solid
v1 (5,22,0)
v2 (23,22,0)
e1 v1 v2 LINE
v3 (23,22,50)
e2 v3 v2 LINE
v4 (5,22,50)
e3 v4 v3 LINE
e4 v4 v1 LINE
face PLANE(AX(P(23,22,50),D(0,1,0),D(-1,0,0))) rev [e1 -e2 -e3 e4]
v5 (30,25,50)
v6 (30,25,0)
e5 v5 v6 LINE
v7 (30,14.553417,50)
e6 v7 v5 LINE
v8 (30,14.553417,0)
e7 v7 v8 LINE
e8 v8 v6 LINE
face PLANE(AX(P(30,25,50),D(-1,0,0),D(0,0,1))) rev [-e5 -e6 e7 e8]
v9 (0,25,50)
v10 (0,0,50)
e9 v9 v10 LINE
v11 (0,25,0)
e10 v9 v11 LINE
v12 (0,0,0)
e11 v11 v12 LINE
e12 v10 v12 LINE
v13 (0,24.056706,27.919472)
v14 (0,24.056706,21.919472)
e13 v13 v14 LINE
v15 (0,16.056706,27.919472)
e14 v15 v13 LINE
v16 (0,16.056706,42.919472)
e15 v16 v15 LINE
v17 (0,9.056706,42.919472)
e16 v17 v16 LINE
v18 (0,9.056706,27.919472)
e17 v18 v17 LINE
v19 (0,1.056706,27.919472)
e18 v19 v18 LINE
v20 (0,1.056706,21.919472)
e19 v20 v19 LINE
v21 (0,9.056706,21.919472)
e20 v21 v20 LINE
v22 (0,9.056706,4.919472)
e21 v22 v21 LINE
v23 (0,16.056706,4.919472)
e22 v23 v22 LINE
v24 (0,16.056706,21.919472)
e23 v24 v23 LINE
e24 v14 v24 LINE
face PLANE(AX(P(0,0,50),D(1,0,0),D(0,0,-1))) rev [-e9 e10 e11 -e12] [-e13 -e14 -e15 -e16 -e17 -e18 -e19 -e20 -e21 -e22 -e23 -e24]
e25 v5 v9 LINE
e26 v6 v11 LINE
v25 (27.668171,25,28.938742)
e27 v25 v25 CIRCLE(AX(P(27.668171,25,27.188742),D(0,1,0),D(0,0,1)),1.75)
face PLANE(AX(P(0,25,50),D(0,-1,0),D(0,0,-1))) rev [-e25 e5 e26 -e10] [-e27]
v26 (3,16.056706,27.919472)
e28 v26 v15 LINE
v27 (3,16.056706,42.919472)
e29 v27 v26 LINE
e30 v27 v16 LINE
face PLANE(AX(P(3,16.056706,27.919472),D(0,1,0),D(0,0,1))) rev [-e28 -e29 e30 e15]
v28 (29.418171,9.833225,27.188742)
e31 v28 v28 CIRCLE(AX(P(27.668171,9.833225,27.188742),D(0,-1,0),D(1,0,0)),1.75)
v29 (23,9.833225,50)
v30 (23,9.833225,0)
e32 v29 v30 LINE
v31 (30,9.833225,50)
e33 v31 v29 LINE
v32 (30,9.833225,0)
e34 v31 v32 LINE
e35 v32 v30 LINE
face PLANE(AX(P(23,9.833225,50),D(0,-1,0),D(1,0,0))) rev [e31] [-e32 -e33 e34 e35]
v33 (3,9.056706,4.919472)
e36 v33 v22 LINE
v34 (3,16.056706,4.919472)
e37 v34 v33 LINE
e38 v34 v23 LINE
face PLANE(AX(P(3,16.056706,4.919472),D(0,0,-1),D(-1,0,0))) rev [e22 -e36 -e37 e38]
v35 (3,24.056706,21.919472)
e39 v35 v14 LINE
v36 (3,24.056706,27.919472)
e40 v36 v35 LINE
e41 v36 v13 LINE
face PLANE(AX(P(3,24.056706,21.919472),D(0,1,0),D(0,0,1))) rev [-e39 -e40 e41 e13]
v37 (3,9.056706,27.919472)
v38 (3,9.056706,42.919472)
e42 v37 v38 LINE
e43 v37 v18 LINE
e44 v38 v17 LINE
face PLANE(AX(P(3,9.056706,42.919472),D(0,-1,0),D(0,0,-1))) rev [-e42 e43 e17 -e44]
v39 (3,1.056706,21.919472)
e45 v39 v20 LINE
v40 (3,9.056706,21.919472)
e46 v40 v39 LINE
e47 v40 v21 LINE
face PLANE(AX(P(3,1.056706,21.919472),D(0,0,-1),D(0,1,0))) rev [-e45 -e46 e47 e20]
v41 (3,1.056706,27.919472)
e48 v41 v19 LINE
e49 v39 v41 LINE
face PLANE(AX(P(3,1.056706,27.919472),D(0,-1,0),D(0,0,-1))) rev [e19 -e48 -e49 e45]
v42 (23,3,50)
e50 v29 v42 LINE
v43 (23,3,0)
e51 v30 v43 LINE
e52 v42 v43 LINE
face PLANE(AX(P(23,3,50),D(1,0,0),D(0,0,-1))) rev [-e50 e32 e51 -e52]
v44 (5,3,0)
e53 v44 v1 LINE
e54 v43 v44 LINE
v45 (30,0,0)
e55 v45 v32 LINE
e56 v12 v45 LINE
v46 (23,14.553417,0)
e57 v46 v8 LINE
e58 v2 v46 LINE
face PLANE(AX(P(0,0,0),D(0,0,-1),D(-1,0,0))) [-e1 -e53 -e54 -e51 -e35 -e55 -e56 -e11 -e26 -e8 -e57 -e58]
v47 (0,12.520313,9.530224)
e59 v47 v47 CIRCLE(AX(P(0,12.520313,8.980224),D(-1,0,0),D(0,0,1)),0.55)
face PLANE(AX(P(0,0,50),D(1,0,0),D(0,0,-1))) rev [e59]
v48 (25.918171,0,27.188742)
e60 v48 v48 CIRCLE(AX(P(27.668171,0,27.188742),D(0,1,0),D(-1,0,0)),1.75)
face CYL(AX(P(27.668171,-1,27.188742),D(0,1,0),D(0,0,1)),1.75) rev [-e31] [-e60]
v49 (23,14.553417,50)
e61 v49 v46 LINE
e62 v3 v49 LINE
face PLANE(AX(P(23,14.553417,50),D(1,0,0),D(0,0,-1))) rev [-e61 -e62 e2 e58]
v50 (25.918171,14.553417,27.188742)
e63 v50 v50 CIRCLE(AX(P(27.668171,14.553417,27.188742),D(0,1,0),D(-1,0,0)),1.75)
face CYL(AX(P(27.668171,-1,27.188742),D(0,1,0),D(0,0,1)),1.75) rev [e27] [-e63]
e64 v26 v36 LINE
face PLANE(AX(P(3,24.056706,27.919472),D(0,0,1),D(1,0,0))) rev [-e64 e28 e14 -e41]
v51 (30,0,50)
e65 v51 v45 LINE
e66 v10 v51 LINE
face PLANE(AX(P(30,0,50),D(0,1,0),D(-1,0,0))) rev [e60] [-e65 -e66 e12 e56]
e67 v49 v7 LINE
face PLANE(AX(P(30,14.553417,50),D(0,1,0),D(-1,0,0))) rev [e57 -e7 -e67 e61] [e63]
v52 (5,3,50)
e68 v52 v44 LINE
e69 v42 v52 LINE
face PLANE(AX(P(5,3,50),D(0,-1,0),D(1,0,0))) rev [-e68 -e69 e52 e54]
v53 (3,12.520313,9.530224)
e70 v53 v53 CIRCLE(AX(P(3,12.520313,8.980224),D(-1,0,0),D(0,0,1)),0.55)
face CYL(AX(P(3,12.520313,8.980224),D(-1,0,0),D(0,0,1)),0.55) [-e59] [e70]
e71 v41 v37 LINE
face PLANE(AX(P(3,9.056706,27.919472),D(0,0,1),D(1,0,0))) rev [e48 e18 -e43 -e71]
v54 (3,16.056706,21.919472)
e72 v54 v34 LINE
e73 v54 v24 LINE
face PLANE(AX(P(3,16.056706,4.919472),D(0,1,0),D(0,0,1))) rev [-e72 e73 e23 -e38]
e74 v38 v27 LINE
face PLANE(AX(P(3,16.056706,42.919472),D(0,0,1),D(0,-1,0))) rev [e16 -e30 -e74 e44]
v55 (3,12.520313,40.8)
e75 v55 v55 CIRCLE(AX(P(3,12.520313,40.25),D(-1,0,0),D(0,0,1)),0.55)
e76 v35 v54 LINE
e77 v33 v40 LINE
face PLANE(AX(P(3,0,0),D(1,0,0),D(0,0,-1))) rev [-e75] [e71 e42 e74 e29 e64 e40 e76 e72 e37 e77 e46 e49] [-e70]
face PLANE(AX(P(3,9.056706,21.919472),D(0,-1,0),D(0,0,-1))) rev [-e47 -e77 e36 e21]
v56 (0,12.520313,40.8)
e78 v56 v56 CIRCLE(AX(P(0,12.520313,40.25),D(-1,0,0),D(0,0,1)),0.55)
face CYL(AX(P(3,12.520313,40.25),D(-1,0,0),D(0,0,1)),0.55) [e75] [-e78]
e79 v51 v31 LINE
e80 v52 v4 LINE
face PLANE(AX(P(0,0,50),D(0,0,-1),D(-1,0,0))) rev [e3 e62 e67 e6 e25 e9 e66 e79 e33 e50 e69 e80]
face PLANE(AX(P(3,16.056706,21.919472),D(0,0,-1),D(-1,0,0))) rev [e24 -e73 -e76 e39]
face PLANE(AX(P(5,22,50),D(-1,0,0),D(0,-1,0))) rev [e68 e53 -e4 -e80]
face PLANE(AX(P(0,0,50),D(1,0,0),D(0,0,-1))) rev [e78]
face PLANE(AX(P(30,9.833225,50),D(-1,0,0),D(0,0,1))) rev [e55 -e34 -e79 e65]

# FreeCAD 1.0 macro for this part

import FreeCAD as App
import Part
import Sketcher
Q = App.Units.Quantity

doc = App.newDocument("Part")
params = doc.addObject("Spreadsheet::Sheet", "Params")
for row, (alias, value) in enumerate([
    ("sketch1_width", "30 mm"),
    ("sketch1_width2", "7 mm"),
    ("sketch1_width3", "18 mm"),
    ("sketch1_height", "25 mm"),
    ("sketch1_height2", "19 mm"),
    ("pad1_length", "50 mm"),
    ("sketch2_diameter", "1.1 mm"),
    ("sketch2_width", "7 mm"),
    ("sketch2_width2", "8 mm"),
    ("sketch2_height", "17 mm"),
    ("sketch2_height2", "6 mm"),
    ("pocket1_length", "3 mm"),
    ("sketch3_diameter", "3.5 mm"),
    ("pocket2_length", "26 mm"),
], start=1):
    params.set(f"A{row}", alias)
    params.set(f"B{row}", "=" + value)
    params.setAlias(f"B{row}", alias)

body = doc.addObject("PartDesign::Body", "Body")

# Sketch on XY plane
sketch1 = body.newObject("Sketcher::SketchObject", "Sketch")
sketch1.AttachmentSupport = (doc.getObject("XY_Plane"), [""])
sketch1.MapMode = "FlatFace"
sketch1.addGeometry(Part.LineSegment(App.Vector(0, 25, 0), App.Vector(0, 0, 0)), False)
sketch1.addGeometry(Part.LineSegment(App.Vector(0, 0, 0), App.Vector(30, 0, 0)), False)
sketch1.addGeometry(Part.LineSegment(App.Vector(30, 0, 0), App.Vector(30, 10, 0)), False)
sketch1.addGeometry(Part.LineSegment(App.Vector(30, 10, 0), App.Vector(23, 10, 0)), False)
sketch1.addGeometry(Part.LineSegment(App.Vector(23, 10, 0), App.Vector(23, 3, 0)), False)
sketch1.addGeometry(Part.LineSegment(App.Vector(23, 3, 0), App.Vector(5, 3, 0)), False)
sketch1.addGeometry(Part.LineSegment(App.Vector(5, 3, 0), App.Vector(5, 22, 0)), False)
sketch1.addGeometry(Part.LineSegment(App.Vector(5, 22, 0), App.Vector(23, 22, 0)), False)
sketch1.addGeometry(Part.LineSegment(App.Vector(23, 22, 0), App.Vector(23, 15, 0)), False)
sketch1.addGeometry(Part.LineSegment(App.Vector(23, 15, 0), App.Vector(30, 15, 0)), False)
sketch1.addGeometry(Part.LineSegment(App.Vector(30, 15, 0), App.Vector(30, 25, 0)), False)
sketch1.addGeometry(Part.LineSegment(App.Vector(30, 25, 0), App.Vector(0, 25, 0)), False)
sketch1.addConstraint(Sketcher.Constraint("Coincident", 0, 2, 1, 1))
sketch1.addConstraint(Sketcher.Constraint("Coincident", 1, 2, 2, 1))
sketch1.addConstraint(Sketcher.Constraint("Coincident", 2, 2, 3, 1))
sketch1.addConstraint(Sketcher.Constraint("Coincident", 3, 2, 4, 1))
sketch1.addConstraint(Sketcher.Constraint("Coincident", 4, 2, 5, 1))
sketch1.addConstraint(Sketcher.Constraint("Coincident", 5, 2, 6, 1))
sketch1.addConstraint(Sketcher.Constraint("Coincident", 6, 2, 7, 1))
sketch1.addConstraint(Sketcher.Constraint("Coincident", 7, 2, 8, 1))
sketch1.addConstraint(Sketcher.Constraint("Coincident", 8, 2, 9, 1))
sketch1.addConstraint(Sketcher.Constraint("Coincident", 9, 2, 10, 1))
sketch1.addConstraint(Sketcher.Constraint("Coincident", 10, 2, 11, 1))
sketch1.addConstraint(Sketcher.Constraint("Coincident", 11, 2, 0, 1))
sketch1.addConstraint(Sketcher.Constraint("Vertical", 0))
sketch1.addConstraint(Sketcher.Constraint("Horizontal", 1))
sketch1.addConstraint(Sketcher.Constraint("Vertical", 2))
sketch1.addConstraint(Sketcher.Constraint("Horizontal", 3))
sketch1.addConstraint(Sketcher.Constraint("Vertical", 4))
sketch1.addConstraint(Sketcher.Constraint("Horizontal", 5))
sketch1.addConstraint(Sketcher.Constraint("Vertical", 6))
sketch1.addConstraint(Sketcher.Constraint("Horizontal", 7))
sketch1.addConstraint(Sketcher.Constraint("Vertical", 8))
sketch1.addConstraint(Sketcher.Constraint("Horizontal", 9))
sketch1.addConstraint(Sketcher.Constraint("Vertical", 10))
sketch1.addConstraint(Sketcher.Constraint("Horizontal", 11))
sketch1.addConstraint(Sketcher.Constraint("Coincident", 0, 2, -1, 1))
sketch1.addConstraint(Sketcher.Constraint("Vertical", 4, 2, 7, 2))
sketch1.addConstraint(Sketcher.Constraint("Vertical", 2, 2, 9, 2))
sketch1.addConstraint(Sketcher.Constraint("DistanceX", 1, 1, 1, 2, Q("30 mm")))
sketch1.addConstraint(Sketcher.Constraint("DistanceX", 3, 2, 3, 1, Q("7 mm")))
sketch1.addConstraint(Sketcher.Constraint("DistanceX", 5, 2, 5, 1, Q("18 mm")))
sketch1.addConstraint(Sketcher.Constraint("DistanceY", 0, 2, 0, 1, Q("25 mm")))
sketch1.addConstraint(Sketcher.Constraint("DistanceY", 6, 1, 6, 2, Q("19 mm")))
sketch1.addConstraint(Sketcher.Constraint("DistanceY", -1, 1, 4, 2, Q("3 mm")))
sketch1.addConstraint(Sketcher.Constraint("DistanceY", 2, 1, 2, 2, Q("9.833225 mm")))
sketch1.addConstraint(Sketcher.Constraint("DistanceY", 8, 2, 8, 1, Q("7.446583 mm")))
sketch1.setExpression("Constraints[27]", "Params.sketch1_width")
sketch1.setExpression("Constraints[28]", "Params.sketch1_width2")
sketch1.setExpression("Constraints[29]", "Params.sketch1_width3")
sketch1.setExpression("Constraints[30]", "Params.sketch1_height")
sketch1.setExpression("Constraints[31]", "Params.sketch1_height2")
pad1 = body.newObject("PartDesign::Pad", "Pad")
pad1.Profile = sketch1
pad1.setExpression("Length", "Params.pad1_length")

# Sketch on YZ plane
sketch2 = body.newObject("Sketcher::SketchObject", "Sketch001")
sketch2.AttachmentSupport = (doc.getObject("YZ_Plane"), [""])
sketch2.MapMode = "FlatFace"
sketch2.addGeometry(Part.LineSegment(App.Vector(16.1, 21.9, 0), App.Vector(16.1, 4.9, 0)), False)
sketch2.addGeometry(Part.LineSegment(App.Vector(16.1, 4.9, 0), App.Vector(9.1, 4.9, 0)), False)
sketch2.addGeometry(Part.LineSegment(App.Vector(9.1, 4.9, 0), App.Vector(9.1, 21.9, 0)), False)
sketch2.addGeometry(Part.LineSegment(App.Vector(9.1, 21.9, 0), App.Vector(1.1, 21.9, 0)), False)
sketch2.addGeometry(Part.LineSegment(App.Vector(1.1, 21.9, 0), App.Vector(1.1, 27.9, 0)), False)
sketch2.addGeometry(Part.LineSegment(App.Vector(1.1, 27.9, 0), App.Vector(9.1, 27.9, 0)), False)
sketch2.addGeometry(Part.LineSegment(App.Vector(9.1, 27.9, 0), App.Vector(9.1, 42.9, 0)), False)
sketch2.addGeometry(Part.LineSegment(App.Vector(9.1, 42.9, 0), App.Vector(16.1, 42.9, 0)), False)
sketch2.addGeometry(Part.LineSegment(App.Vector(16.1, 42.9, 0), App.Vector(16.1, 27.9, 0)), False)
sketch2.addGeometry(Part.LineSegment(App.Vector(16.1, 27.9, 0), App.Vector(24.1, 27.9, 0)), False)
sketch2.addGeometry(Part.LineSegment(App.Vector(24.1, 27.9, 0), App.Vector(24.1, 21.9, 0)), False)
sketch2.addGeometry(Part.LineSegment(App.Vector(24.1, 21.9, 0), App.Vector(16.1, 21.9, 0)), False)
sketch2.addGeometry(Part.Circle(App.Vector(12.5, 40.2, 0), App.Vector(0, 0, 1), 0.6), False)
sketch2.addGeometry(Part.Circle(App.Vector(12.5, 9, 0), App.Vector(0, 0, 1), 0.6), False)
sketch2.addConstraint(Sketcher.Constraint("Coincident", 0, 2, 1, 1))
sketch2.addConstraint(Sketcher.Constraint("Coincident", 1, 2, 2, 1))
sketch2.addConstraint(Sketcher.Constraint("Coincident", 2, 2, 3, 1))
sketch2.addConstraint(Sketcher.Constraint("Coincident", 3, 2, 4, 1))
sketch2.addConstraint(Sketcher.Constraint("Coincident", 4, 2, 5, 1))
sketch2.addConstraint(Sketcher.Constraint("Coincident", 5, 2, 6, 1))
sketch2.addConstraint(Sketcher.Constraint("Coincident", 6, 2, 7, 1))
sketch2.addConstraint(Sketcher.Constraint("Coincident", 7, 2, 8, 1))
sketch2.addConstraint(Sketcher.Constraint("Coincident", 8, 2, 9, 1))
sketch2.addConstraint(Sketcher.Constraint("Coincident", 9, 2, 10, 1))
sketch2.addConstraint(Sketcher.Constraint("Coincident", 10, 2, 11, 1))
sketch2.addConstraint(Sketcher.Constraint("Coincident", 11, 2, 0, 1))
sketch2.addConstraint(Sketcher.Constraint("Vertical", 0))
sketch2.addConstraint(Sketcher.Constraint("Horizontal", 1))
sketch2.addConstraint(Sketcher.Constraint("Vertical", 2))
sketch2.addConstraint(Sketcher.Constraint("Horizontal", 3))
sketch2.addConstraint(Sketcher.Constraint("Vertical", 4))
sketch2.addConstraint(Sketcher.Constraint("Horizontal", 5))
sketch2.addConstraint(Sketcher.Constraint("Vertical", 6))
sketch2.addConstraint(Sketcher.Constraint("Horizontal", 7))
sketch2.addConstraint(Sketcher.Constraint("Vertical", 8))
sketch2.addConstraint(Sketcher.Constraint("Horizontal", 9))
sketch2.addConstraint(Sketcher.Constraint("Vertical", 10))
sketch2.addConstraint(Sketcher.Constraint("Horizontal", 11))
sketch2.addConstraint(Sketcher.Constraint("Equal", 12, 13))
sketch2.addConstraint(Sketcher.Constraint("Horizontal", 5, 2, 8, 2))
sketch2.addConstraint(Sketcher.Constraint("Horizontal", 3, 2, 10, 2))
sketch2.addConstraint(Sketcher.Constraint("Vertical", 12, 3, 13, 3))
sketch2.addConstraint(Sketcher.Constraint("Vertical", 2, 2, 5, 2))
sketch2.addConstraint(Sketcher.Constraint("Vertical", 0, 2, 7, 2))
sketch2.addConstraint(Sketcher.Constraint("Equal", 5, 9))
sketch2.addConstraint(Sketcher.Constraint("Diameter", 12, Q("1.1 mm")))
sketch2.addConstraint(Sketcher.Constraint("DistanceX", 1, 2, 1, 1, Q("7 mm")))
sketch2.addConstraint(Sketcher.Constraint("DistanceX", 3, 2, 3, 1, Q("8 mm")))
sketch2.addConstraint(Sketcher.Constraint("DistanceY", 0, 2, 0, 1, Q("17 mm")))
sketch2.addConstraint(Sketcher.Constraint("DistanceY", 4, 1, 4, 2, Q("6 mm")))
sketch2.addConstraint(Sketcher.Constraint("DistanceY", 6, 1, 6, 2, Q("15 mm")))
sketch2.addConstraint(Sketcher.Constraint("DistanceY", -1, 1, 12, 3, Q("40.25 mm")))
sketch2.addConstraint(Sketcher.Constraint("DistanceY", 0, 2, 13, 3, Q("4.060752 mm")))
sketch2.addConstraint(Sketcher.Constraint("DistanceX", -1, 1, 12, 3, Q("12.520313 mm")))
sketch2.addConstraint(Sketcher.Constraint("DistanceY", -1, 1, 13, 3, Q("8.980224 mm")))
sketch2.addConstraint(Sketcher.Constraint("DistanceX", -1, 1, 0, 2, Q("16.056706 mm")))
sketch2.setExpression("Constraints[31]", "Params.sketch2_diameter")
sketch2.setExpression("Constraints[32]", "Params.sketch2_width")
sketch2.setExpression("Constraints[33]", "Params.sketch2_width2")
sketch2.setExpression("Constraints[34]", "Params.sketch2_height")
sketch2.setExpression("Constraints[35]", "Params.sketch2_height2")
pocket1 = body.newObject("PartDesign::Pocket", "Pocket")
pocket1.Profile = sketch2
pocket1.setExpression("Length", "Params.pocket1_length")
pocket1.Reversed = True

# Sketch on XZ plane
sketch3 = body.newObject("Sketcher::SketchObject", "Sketch002")
sketch3.AttachmentSupport = (doc.getObject("XZ_Plane"), [""])
sketch3.MapMode = "FlatFace"
sketch3.AttachmentOffset = App.Placement(App.Vector(0, 0, -25), App.Rotation())
sketch3.addGeometry(Part.Circle(App.Vector(27.7, 27.2, 0), App.Vector(0, 0, 1), 1.8), False)
sketch3.addConstraint(Sketcher.Constraint("Diameter", 0, Q("3.5 mm")))
sketch3.addConstraint(Sketcher.Constraint("DistanceX", -1, 1, 0, 3, Q("27.668171 mm")))
sketch3.addConstraint(Sketcher.Constraint("DistanceY", -1, 1, 0, 3, Q("27.188742 mm")))
sketch3.setExpression("Constraints[0]", "Params.sketch3_diameter")
pocket2 = body.newObject("PartDesign::Pocket", "Pocket001")
pocket2.Profile = sketch3
pocket2.setExpression("Length", "Params.pocket2_length")
pocket2.Reversed = True

doc.recompute()
